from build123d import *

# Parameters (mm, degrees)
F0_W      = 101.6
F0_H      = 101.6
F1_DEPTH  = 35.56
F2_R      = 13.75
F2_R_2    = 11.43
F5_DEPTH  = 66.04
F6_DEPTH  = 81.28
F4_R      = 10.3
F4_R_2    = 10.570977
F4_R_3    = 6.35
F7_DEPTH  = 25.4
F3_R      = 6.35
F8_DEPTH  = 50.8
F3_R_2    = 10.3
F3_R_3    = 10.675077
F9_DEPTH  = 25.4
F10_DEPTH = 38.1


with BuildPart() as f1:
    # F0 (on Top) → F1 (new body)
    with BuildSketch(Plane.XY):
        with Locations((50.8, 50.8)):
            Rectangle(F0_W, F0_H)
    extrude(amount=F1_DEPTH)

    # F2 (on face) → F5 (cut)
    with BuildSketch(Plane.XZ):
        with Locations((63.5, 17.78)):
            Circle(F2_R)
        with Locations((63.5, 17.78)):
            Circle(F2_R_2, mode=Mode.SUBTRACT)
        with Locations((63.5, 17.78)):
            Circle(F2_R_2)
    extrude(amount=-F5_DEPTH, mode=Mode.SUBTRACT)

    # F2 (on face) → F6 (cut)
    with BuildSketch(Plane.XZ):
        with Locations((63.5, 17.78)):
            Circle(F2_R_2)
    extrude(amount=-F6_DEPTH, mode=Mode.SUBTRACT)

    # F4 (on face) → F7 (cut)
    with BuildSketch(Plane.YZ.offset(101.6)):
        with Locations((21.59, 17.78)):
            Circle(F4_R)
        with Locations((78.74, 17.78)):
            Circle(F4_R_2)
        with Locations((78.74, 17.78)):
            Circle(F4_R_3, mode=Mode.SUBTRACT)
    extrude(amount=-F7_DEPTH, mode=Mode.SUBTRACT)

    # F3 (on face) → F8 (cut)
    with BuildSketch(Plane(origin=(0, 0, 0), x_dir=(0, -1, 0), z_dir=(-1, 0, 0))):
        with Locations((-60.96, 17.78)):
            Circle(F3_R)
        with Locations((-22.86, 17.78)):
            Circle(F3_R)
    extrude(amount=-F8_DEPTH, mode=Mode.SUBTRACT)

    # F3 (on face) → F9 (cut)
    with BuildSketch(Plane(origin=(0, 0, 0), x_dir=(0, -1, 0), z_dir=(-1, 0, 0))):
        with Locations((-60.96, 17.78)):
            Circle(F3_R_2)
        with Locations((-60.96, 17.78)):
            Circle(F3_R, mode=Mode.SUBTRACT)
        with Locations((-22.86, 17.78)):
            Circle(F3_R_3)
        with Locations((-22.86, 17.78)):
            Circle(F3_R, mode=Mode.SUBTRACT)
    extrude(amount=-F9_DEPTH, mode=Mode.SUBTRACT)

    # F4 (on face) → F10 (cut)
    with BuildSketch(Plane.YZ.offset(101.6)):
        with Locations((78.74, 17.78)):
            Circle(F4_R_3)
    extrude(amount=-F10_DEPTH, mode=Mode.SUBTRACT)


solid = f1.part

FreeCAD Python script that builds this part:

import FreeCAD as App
import Part
import Sketcher
Q = App.Units.Quantity


def add_polygon(sketch, points):
    """Adds a closed chain of lines whose ends are joined by coincident constraints."""
    first, n = sketch.GeometryCount, len(points)
    for a, b in zip(points, points[1:] + points[:1]):
        sketch.addGeometry(Part.LineSegment(App.Vector(*a, 0), App.Vector(*b, 0)), False)
    for i in range(n):
        sketch.addConstraint(Sketcher.Constraint("Coincident", first + i, 2, first + (i + 1) % n, 1))

doc = App.newDocument("Part")
body = doc.addObject("PartDesign::Body", "Body")

# Sketch on XY plane
sketch1 = body.newObject("Sketcher::SketchObject", "Sketch")
sketch1.AttachmentSupport = (doc.getObject("XY_Plane"), [""])
sketch1.MapMode = "FlatFace"
add_polygon(sketch1, [(0, 102), (0, 0), (102, 0), (102, 102)])  # lines 0-3
sketch1.addConstraint([
    Sketcher.Constraint("Vertical", 0),
    Sketcher.Constraint("Horizontal", 1),
    Sketcher.Constraint("Vertical", 2),
    Sketcher.Constraint("Horizontal", 3),
    Sketcher.Constraint("Coincident", 0, 2, -1, 1),
    Sketcher.Constraint("Equal", 3, 0),
    Sketcher.Constraint("DistanceX", 1, 1, 1, 2, Q("4 in")),
])
pad1 = body.newObject("PartDesign::Pad", "Pad")
pad1.Profile = sketch1
pad1.Length = Q("1.4 in")

# Sketch on XZ plane
sketch2 = body.newObject("Sketcher::SketchObject", "Sketch001")
sketch2.AttachmentSupport = (doc.getObject("XZ_Plane"), [""])
sketch2.MapMode = "FlatFace"
sketch2.addGeometry(Part.Circle(App.Vector(64, 18, 0), App.Vector(0, 0, 1), 14), False)
sketch2.addConstraint([
    Sketcher.Constraint("DistanceX", -1, 1, 0, 3, Q("2.5 in")),
    Sketcher.Constraint("DistanceY", -1, 1, 0, 3, Q("0.7 in")),
    Sketcher.Constraint("Diameter", 0, Q("27.5 mm")),
])
pocket1 = body.newObject("PartDesign::Pocket", "Pocket")
pocket1.Profile = sketch2
pocket1.Length = Q("2.6 in")

# Sketch on XZ plane
sketch3 = body.newObject("Sketcher::SketchObject", "Sketch002")
sketch3.AttachmentSupport = (doc.getObject("XZ_Plane"), [""])
sketch3.MapMode = "FlatFace"
sketch3.addGeometry(Part.Circle(App.Vector(64, 18, 0), App.Vector(0, 0, 1), 11), False)
sketch3.addConstraint([
    Sketcher.Constraint("Diameter", 0, Q("0.9 in")),
    Sketcher.Constraint("DistanceX", -1, 1, 0, 3, Q("2.5 in")),
    Sketcher.Constraint("DistanceY", -1, 1, 0, 3, Q("0.7 in")),
])
pocket2 = body.newObject("PartDesign::Pocket", "Pocket001")
pocket2.Profile = sketch3
pocket2.Length = Q("3.2 in")

# Sketch on YZ plane
sketch4 = body.newObject("Sketcher::SketchObject", "Sketch003")
sketch4.AttachmentSupport = (doc.getObject("YZ_Plane"), [""])
sketch4.MapMode = "FlatFace"
sketch4.AttachmentOffset = App.Placement(App.Vector(0, 0, 4 * 25.4), App.Rotation())
sketch4.addGeometry([
    Part.Circle(App.Vector(22, 18, 0), App.Vector(0, 0, 1), 10),
    Part.Circle(App.Vector(79, 18, 0), App.Vector(0, 0, 1), 11),
    Part.Circle(App.Vector(79, 18, 0), App.Vector(0, 0, 1), 6),
], False)
sketch4.addConstraint([
    Sketcher.Constraint("Coincident", 2, 3, 1, 3),
    Sketcher.Constraint("Horizontal", 0, 3, 1, 3),
    Sketcher.Constraint("Diameter", 2, Q("0.5 in")),
    Sketcher.Constraint("DistanceY", -1, 1, 0, 3, Q("0.7 in")),
    Sketcher.Constraint("DistanceX", -1, 1, 1, 3, Q("3.1 in")),
    Sketcher.Constraint("Diameter", 0, Q("20.6 mm")),
    Sketcher.Constraint("DistanceX", -1, 1, 0, 3, Q("0.85 in")),
    Sketcher.Constraint("Diameter", 1, Q("21.141954 mm")),
])
pocket3 = body.newObject("PartDesign::Pocket", "Pocket002")
pocket3.Profile = sketch4
pocket3.Length = Q("1 in")

# Sketch on YZ plane
sketch5 = body.newObject("Sketcher::SketchObject", "Sketch004")
sketch5.AttachmentSupport = (doc.getObject("YZ_Plane"), [""])
sketch5.MapMode = "FlatFace"
sketch5.addGeometry([
    Part.Circle(App.Vector(61, 18, 0), App.Vector(0, 0, 1), 6),
    Part.Circle(App.Vector(23, 18, 0), App.Vector(0, 0, 1), 6),
], False)
sketch5.addConstraint([
    Sketcher.Constraint("Equal", 0, 1),
    Sketcher.Constraint("Horizontal", 0, 3, 1, 3),
    Sketcher.Constraint("Diameter", 0, Q("0.5 in")),
    Sketcher.Constraint("DistanceX", -1, 1, 0, 3, Q("2.4 in")),
    Sketcher.Constraint("DistanceY", -1, 1, 0, 3, Q("0.7 in")),
    Sketcher.Constraint("DistanceX", -1, 1, 1, 3, Q("0.9 in")),
])
pocket4 = body.newObject("PartDesign::Pocket", "Pocket003")
pocket4.Profile = sketch5
pocket4.Length = Q("2 in")
pocket4.Reversed = True

# Sketch on YZ plane
sketch6 = body.newObject("Sketcher::SketchObject", "Sketch005")
sketch6.AttachmentSupport = (doc.getObject("YZ_Plane"), [""])
sketch6.MapMode = "FlatFace"
sketch6.addGeometry([
    Part.Circle(App.Vector(61, 18, 0), App.Vector(0, 0, 1), 10),
    Part.Circle(App.Vector(61, 18, 0), App.Vector(0, 0, 1), 6),
    Part.Circle(App.Vector(23, 18, 0), App.Vector(0, 0, 1), 11),
    Part.Circle(App.Vector(23, 18, 0), App.Vector(0, 0, 1), 6),
], False)
sketch6.addConstraint([
    Sketcher.Constraint("Coincident", 1, 3, 0, 3),
    Sketcher.Constraint("Coincident", 3, 3, 2, 3),
    Sketcher.Constraint("Equal", 1, 3),
    Sketcher.Constraint("Horizontal", 1, 3, 2, 3),
    Sketcher.Constraint("Diameter", 1, Q("0.5 in")),
    Sketcher.Constraint("DistanceX", -1, 1, 0, 3, Q("2.4 in")),
    Sketcher.Constraint("DistanceY", -1, 1, 0, 3, Q("0.7 in")),
    Sketcher.Constraint("DistanceX", -1, 1, 2, 3, Q("0.9 in")),
    Sketcher.Constraint("Diameter", 0, Q("20.6 mm")),
    Sketcher.Constraint("Diameter", 2, Q("21.350154 mm")),
])
pocket5 = body.newObject("PartDesign::Pocket", "Pocket004")
pocket5.Profile = sketch6
pocket5.Length = Q("1 in")
pocket5.Reversed = True

# Sketch on YZ plane
sketch7 = body.newObject("Sketcher::SketchObject", "Sketch006")
sketch7.AttachmentSupport = (doc.getObject("YZ_Plane"), [""])
sketch7.MapMode = "FlatFace"
sketch7.AttachmentOffset = App.Placement(App.Vector(0, 0, 4 * 25.4), App.Rotation())
sketch7.addGeometry(Part.Circle(App.Vector(79, 18, 0), App.Vector(0, 0, 1), 6), False)
sketch7.addConstraint([
    Sketcher.Constraint("Diameter", 0, Q("0.5 in")),
    Sketcher.Constraint("DistanceX", -1, 1, 0, 3, Q("3.1 in")),
    Sketcher.Constraint("DistanceY", -1, 1, 0, 3, Q("0.7 in")),
])
pocket6 = body.newObject("PartDesign::Pocket", "Pocket005")
pocket6.Profile = sketch7
pocket6.Length = Q("1.5 in")

doc.recompute()
